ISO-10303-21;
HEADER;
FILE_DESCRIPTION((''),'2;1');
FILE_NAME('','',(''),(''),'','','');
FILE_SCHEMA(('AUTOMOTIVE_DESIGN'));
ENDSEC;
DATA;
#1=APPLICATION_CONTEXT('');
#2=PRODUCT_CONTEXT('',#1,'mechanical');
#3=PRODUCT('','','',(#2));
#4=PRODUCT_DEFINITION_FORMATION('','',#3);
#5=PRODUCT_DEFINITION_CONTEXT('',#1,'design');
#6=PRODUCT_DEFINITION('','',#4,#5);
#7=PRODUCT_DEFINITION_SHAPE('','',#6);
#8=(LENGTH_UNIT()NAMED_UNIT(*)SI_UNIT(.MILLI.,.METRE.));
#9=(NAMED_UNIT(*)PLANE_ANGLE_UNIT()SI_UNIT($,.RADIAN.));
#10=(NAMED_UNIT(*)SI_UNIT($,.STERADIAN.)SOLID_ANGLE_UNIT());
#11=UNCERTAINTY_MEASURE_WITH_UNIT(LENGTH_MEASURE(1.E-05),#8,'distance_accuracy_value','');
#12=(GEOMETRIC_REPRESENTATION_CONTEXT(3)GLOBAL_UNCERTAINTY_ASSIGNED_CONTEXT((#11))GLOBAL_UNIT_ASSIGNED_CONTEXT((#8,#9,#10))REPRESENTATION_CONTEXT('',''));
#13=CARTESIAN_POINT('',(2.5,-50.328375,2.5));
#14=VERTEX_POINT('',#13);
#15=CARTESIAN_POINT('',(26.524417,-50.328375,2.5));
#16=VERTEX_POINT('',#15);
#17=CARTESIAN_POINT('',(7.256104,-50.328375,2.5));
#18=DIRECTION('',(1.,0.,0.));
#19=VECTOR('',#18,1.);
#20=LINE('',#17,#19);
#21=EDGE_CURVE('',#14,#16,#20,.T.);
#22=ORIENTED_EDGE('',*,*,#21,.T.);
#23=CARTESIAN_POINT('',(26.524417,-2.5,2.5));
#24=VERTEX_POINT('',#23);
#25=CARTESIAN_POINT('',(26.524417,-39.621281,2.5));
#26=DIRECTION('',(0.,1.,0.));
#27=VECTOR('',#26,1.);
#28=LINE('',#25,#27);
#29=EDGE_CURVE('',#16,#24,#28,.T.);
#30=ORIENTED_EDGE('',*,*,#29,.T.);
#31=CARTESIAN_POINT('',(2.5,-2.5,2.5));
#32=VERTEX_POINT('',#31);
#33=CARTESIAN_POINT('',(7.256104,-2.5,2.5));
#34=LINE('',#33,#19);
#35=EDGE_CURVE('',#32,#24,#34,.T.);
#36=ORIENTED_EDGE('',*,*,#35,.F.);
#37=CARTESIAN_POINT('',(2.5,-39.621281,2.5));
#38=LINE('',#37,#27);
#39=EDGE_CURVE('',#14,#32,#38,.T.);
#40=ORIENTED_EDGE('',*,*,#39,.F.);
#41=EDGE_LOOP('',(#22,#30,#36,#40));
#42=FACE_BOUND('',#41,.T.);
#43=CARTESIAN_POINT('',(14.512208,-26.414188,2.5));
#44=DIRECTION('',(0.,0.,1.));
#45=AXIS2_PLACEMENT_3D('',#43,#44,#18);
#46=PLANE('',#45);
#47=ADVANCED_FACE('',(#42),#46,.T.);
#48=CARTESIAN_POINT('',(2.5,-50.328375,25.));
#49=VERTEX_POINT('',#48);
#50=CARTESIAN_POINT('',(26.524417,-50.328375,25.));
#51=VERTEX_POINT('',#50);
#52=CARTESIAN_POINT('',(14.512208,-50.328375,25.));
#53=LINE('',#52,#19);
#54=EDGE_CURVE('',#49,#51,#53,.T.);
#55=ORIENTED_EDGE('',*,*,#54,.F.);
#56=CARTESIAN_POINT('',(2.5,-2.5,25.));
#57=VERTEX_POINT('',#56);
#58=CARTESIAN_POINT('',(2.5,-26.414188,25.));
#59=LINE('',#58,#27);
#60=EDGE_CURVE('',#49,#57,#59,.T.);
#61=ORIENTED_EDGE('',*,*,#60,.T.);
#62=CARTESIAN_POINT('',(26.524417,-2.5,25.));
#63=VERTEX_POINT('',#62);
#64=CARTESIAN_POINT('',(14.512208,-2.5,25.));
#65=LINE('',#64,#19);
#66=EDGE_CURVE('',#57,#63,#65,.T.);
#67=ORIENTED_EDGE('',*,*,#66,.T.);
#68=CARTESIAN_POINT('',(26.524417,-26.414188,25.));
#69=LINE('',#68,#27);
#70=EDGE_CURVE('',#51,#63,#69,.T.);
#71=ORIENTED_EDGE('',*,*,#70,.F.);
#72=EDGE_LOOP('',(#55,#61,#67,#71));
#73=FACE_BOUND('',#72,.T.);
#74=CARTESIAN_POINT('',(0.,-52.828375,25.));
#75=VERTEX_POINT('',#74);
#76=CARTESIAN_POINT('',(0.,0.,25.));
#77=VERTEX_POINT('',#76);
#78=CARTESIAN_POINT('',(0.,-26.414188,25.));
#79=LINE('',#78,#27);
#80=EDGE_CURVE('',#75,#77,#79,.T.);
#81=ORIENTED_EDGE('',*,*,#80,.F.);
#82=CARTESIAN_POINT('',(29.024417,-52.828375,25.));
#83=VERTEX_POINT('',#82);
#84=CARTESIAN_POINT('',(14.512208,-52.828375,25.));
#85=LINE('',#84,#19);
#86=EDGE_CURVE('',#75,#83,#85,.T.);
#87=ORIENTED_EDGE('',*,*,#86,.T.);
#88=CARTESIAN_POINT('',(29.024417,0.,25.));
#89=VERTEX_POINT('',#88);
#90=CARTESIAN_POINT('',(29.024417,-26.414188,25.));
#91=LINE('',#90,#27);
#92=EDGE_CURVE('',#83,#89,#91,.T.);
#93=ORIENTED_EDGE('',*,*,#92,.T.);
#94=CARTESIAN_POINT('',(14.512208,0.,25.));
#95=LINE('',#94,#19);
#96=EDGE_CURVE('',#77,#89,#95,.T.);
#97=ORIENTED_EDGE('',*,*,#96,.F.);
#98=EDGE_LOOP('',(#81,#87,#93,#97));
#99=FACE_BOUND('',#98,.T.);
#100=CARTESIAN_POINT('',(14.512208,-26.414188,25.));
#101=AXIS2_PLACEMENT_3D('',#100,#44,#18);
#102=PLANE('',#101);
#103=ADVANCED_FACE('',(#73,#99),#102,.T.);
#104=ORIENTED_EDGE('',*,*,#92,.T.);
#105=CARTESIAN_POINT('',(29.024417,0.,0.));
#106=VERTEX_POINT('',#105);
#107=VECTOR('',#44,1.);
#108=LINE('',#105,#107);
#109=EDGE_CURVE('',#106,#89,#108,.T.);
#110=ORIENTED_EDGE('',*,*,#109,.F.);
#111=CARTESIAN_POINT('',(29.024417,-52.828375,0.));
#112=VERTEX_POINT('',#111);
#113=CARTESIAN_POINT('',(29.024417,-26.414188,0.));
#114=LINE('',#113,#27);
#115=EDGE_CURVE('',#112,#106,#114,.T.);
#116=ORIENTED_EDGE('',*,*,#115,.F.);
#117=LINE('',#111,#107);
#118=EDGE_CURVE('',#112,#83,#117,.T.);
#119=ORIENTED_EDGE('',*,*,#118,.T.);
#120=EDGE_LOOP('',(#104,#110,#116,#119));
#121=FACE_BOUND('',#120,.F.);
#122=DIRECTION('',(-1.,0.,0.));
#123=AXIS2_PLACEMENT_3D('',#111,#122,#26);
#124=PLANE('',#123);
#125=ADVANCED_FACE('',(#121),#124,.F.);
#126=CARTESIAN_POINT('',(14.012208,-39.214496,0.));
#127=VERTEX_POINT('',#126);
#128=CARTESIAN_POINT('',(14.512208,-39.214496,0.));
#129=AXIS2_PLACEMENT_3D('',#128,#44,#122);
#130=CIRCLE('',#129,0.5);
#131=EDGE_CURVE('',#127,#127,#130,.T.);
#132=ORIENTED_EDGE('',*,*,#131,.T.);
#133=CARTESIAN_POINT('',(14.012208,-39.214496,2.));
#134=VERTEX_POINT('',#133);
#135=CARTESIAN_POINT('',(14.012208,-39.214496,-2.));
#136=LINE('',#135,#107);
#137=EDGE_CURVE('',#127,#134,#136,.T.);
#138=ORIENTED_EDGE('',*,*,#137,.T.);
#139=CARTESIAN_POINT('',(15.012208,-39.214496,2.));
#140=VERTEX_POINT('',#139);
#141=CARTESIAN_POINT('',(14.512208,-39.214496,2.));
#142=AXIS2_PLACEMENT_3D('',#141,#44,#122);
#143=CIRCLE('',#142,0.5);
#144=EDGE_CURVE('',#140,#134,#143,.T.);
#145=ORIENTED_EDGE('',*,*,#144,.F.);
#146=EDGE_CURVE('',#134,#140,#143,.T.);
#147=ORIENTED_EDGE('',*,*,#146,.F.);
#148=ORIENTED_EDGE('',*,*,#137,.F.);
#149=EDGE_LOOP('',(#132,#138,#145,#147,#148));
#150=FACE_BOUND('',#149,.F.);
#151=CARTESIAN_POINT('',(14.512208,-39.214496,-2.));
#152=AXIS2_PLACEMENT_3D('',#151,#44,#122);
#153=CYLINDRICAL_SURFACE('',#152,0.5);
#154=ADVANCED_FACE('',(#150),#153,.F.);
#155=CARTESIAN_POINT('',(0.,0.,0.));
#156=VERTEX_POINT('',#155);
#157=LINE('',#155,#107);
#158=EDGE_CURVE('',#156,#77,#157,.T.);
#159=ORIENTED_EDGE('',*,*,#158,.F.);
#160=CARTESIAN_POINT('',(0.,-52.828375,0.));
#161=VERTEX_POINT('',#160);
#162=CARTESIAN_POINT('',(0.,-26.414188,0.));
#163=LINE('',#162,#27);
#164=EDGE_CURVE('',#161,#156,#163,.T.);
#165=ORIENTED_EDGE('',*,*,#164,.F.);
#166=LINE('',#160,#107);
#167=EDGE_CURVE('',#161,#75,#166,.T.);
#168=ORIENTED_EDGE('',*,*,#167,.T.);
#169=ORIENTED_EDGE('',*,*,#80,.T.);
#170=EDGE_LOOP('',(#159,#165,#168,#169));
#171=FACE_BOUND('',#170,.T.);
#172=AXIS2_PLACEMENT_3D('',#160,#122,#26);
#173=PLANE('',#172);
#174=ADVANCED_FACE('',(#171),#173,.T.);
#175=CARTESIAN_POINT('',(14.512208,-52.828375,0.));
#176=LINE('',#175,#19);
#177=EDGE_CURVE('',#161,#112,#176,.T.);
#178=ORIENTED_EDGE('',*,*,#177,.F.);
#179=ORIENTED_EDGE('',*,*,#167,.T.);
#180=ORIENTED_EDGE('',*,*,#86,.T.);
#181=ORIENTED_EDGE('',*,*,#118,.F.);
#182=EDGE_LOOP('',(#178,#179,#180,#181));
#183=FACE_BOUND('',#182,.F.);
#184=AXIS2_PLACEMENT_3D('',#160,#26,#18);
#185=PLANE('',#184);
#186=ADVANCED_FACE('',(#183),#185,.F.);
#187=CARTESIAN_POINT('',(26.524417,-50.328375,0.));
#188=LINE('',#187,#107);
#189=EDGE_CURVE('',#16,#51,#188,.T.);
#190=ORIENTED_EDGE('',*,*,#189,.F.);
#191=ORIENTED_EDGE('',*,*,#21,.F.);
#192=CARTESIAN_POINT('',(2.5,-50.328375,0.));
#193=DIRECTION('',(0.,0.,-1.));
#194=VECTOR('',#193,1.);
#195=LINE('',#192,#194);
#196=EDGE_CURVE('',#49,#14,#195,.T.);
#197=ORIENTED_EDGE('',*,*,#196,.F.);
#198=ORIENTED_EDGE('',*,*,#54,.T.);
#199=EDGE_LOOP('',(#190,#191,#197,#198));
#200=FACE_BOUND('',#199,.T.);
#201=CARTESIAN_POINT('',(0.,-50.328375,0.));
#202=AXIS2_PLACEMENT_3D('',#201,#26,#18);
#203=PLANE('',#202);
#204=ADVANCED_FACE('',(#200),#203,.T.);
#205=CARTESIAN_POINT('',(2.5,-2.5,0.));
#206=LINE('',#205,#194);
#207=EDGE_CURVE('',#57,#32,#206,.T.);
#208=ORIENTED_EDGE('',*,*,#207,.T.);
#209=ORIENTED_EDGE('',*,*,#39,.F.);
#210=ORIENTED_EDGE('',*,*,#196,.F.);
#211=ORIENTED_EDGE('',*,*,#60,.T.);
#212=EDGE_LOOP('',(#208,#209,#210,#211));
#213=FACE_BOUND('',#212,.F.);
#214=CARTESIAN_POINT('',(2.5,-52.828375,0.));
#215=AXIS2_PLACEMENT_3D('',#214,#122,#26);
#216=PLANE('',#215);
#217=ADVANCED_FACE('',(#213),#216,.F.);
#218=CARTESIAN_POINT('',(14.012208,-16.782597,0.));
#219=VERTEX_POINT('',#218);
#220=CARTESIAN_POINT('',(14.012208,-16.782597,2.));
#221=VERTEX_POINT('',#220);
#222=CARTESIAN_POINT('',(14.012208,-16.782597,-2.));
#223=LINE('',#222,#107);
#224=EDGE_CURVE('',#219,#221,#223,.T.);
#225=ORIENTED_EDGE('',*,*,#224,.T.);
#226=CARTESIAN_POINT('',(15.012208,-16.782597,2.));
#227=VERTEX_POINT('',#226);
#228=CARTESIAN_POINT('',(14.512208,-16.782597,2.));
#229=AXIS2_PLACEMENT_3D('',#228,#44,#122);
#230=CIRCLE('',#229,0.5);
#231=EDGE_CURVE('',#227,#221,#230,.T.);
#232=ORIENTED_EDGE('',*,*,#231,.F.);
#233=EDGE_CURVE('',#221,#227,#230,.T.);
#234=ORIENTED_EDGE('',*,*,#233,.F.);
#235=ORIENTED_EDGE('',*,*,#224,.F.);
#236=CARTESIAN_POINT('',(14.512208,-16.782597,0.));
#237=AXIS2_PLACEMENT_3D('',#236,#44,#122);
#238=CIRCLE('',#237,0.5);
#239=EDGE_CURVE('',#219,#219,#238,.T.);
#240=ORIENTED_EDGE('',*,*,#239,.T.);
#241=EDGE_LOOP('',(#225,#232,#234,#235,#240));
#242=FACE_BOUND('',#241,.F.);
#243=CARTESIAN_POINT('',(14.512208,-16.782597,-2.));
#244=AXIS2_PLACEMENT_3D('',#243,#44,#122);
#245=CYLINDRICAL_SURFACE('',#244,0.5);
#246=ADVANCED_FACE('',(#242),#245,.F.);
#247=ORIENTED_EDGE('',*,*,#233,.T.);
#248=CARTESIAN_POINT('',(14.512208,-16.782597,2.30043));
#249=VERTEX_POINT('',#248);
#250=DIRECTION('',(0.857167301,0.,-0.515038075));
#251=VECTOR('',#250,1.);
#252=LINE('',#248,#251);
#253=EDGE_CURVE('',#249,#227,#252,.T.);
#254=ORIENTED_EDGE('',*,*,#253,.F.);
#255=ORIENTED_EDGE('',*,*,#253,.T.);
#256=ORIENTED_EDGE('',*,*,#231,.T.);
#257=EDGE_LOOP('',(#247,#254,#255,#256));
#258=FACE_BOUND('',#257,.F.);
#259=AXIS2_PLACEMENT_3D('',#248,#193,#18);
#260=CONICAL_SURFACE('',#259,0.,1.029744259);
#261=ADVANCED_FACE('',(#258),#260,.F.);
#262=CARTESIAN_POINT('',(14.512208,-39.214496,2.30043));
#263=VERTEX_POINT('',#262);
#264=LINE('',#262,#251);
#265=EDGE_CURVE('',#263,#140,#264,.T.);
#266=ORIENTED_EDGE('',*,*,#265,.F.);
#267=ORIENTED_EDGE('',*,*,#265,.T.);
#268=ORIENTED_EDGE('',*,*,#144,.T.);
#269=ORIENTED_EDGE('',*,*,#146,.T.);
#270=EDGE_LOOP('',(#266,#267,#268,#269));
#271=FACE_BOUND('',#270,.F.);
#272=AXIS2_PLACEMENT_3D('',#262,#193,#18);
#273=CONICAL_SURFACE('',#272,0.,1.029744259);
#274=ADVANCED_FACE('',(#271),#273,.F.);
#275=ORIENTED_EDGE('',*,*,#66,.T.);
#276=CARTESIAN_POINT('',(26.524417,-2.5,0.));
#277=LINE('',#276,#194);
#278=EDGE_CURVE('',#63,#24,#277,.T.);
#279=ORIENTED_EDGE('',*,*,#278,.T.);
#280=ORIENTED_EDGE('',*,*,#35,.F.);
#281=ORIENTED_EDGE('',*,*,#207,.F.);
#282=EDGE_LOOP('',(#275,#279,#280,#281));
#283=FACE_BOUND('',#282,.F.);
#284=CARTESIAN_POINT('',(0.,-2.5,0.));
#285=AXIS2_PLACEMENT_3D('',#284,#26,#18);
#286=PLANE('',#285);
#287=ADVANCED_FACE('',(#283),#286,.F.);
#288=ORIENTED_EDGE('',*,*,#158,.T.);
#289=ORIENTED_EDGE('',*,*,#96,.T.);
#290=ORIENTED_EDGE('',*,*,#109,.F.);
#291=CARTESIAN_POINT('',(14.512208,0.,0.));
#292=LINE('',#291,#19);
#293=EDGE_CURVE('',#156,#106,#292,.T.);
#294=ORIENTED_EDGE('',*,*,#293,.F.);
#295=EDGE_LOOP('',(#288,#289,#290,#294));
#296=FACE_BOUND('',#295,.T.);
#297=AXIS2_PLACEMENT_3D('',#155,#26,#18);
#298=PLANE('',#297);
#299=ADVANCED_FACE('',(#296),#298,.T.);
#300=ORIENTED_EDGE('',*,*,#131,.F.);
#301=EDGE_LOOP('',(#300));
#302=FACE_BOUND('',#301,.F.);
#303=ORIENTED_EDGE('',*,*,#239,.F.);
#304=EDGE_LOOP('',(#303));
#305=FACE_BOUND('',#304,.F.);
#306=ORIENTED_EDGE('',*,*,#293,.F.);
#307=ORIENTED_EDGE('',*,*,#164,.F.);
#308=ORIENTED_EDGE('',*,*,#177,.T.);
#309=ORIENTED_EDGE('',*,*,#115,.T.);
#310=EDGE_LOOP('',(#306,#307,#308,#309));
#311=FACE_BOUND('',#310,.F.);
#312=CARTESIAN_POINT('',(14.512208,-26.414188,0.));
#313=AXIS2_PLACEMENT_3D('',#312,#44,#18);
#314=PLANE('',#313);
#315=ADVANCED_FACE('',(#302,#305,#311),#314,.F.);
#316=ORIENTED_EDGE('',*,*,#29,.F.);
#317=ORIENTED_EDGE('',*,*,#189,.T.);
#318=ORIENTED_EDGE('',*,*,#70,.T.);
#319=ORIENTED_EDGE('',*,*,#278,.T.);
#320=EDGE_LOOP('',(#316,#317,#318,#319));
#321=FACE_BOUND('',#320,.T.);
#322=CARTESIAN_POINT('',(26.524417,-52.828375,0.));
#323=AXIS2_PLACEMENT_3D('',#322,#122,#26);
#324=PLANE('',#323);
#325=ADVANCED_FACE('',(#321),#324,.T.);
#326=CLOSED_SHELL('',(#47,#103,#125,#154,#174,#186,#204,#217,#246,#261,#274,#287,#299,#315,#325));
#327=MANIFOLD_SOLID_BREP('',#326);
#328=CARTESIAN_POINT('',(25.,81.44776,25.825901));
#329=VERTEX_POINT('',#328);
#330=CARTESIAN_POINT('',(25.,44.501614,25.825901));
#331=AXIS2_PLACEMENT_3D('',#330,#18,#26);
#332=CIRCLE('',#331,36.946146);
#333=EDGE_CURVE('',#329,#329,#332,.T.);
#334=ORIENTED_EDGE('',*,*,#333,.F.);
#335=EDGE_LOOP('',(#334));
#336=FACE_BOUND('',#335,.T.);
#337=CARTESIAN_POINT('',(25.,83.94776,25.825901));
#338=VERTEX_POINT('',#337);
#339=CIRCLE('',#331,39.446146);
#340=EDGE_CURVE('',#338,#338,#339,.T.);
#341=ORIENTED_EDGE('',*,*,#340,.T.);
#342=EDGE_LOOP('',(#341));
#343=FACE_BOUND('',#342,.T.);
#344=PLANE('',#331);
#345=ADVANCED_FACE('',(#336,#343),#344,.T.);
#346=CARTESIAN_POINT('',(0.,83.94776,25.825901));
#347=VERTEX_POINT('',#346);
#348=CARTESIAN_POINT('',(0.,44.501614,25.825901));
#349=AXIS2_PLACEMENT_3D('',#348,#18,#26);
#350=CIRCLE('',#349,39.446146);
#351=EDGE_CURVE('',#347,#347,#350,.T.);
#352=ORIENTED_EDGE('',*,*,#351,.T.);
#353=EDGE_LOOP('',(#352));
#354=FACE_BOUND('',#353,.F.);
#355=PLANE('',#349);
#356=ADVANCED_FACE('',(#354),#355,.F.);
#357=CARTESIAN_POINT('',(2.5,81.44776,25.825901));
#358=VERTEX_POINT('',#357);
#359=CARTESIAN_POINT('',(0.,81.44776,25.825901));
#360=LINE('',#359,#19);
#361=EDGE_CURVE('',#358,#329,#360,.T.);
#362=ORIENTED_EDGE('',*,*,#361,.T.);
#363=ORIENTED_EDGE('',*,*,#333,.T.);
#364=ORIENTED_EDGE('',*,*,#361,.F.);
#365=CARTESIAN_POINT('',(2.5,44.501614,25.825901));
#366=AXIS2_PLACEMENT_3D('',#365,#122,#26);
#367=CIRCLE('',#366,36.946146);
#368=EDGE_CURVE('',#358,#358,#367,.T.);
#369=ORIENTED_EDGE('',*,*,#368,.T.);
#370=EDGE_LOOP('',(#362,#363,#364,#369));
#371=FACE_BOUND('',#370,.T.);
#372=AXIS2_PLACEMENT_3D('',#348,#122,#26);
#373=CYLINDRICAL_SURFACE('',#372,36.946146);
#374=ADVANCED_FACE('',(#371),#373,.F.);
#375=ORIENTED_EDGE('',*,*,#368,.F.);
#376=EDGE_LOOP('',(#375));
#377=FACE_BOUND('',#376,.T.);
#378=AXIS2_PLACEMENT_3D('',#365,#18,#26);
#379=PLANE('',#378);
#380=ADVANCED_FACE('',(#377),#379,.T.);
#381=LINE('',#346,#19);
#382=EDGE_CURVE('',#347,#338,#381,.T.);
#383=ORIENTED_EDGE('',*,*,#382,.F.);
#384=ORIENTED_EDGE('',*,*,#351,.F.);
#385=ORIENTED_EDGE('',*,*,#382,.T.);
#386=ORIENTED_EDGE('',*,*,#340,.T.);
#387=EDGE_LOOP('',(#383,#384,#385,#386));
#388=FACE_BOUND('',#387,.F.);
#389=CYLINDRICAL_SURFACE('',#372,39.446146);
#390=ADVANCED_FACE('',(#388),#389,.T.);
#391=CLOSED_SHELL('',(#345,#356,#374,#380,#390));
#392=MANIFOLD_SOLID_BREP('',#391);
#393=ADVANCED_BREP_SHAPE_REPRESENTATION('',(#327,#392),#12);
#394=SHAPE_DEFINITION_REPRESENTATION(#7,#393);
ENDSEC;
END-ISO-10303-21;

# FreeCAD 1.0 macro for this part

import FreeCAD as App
import Part
import Sketcher


def faces_at(feature, points):
    """Names of the faces that lie closest to the given points."""
    faces = feature.Shape.Faces
    near = lambda p: min(range(len(faces)), key=lambda i: faces[i].distToShape(Part.Vertex(*p))[0])
    return sorted({f"Face{near(p) + 1}" for p in points})

doc = App.newDocument("Part")
body = doc.addObject("PartDesign::Body", "Body")

# Sketch on XY plane
sketch1 = body.newObject("Sketcher::SketchObject", "Sketch")
sketch1.AttachmentSupport = (doc.getObject("XY_Plane"), [""])
sketch1.MapMode = "FlatFace"
sketch1.addGeometry([
    Part.LineSegment(App.Vector(0, 0, 0), App.Vector(0, -53, 0)),
    Part.LineSegment(App.Vector(0, -53, 0), App.Vector(29, -53, 0)),
    Part.LineSegment(App.Vector(29, -53, 0), App.Vector(29, 0, 0)),
    Part.LineSegment(App.Vector(29, 0, 0), App.Vector(0, 0, 0)),
], False)
sketch1.addConstraint([
    Sketcher.Constraint("Coincident", 0, 2, 1, 1),
    Sketcher.Constraint("Coincident", 1, 2, 2, 1),
    Sketcher.Constraint("Coincident", 2, 2, 3, 1),
    Sketcher.Constraint("Coincident", 3, 2, 0, 1),
    Sketcher.Constraint("Vertical", 0),
    Sketcher.Constraint("Horizontal", 1),
    Sketcher.Constraint("Vertical", 2),
    Sketcher.Constraint("Horizontal", 3),
    Sketcher.Constraint("Coincident", 3, 2, -1, 1),
    Sketcher.Constraint("DistanceX", 1, 1, 1, 2, 29.024417),
    Sketcher.Constraint("DistanceY", 0, 2, 0, 1, 52.828375),
])
pad1 = body.newObject("PartDesign::Pad", "Pad")
pad1.Profile = sketch1
pad1.Length = 25
doc.recompute()

thickness = body.newObject("PartDesign::Thickness", "Thickness")
thickness.Base = (pad1, faces_at(pad1, [(14.512, -26.414, 25)]))
thickness.Value = 2.5
thickness.Reversed = True
thickness.Join = "Arc"

# Sketch on XY plane
sketch2 = body.newObject("Sketcher::SketchObject", "Sketch001")
sketch2.AttachmentSupport = (doc.getObject("XY_Plane"), [""])
sketch2.MapMode = "FlatFace"
sketch2.addGeometry([
    Part.Circle(App.Vector(14.5, -16.8, 0), App.Vector(0, 0, 1), 0.5),
    Part.Circle(App.Vector(14.5, -39.2, 0), App.Vector(0, 0, 1), 0.5),
], False)
sketch2.addConstraint([
    Sketcher.Constraint("Equal", 0, 1),
    Sketcher.Constraint("Vertical", 0, 3, 1, 3),
    Sketcher.Constraint("Diameter", 0, 1.0),
    Sketcher.Constraint("DistanceY", 1, 3, 0, 3, 22.431899),
    Sketcher.Constraint("DistanceX", -1, 1, 0, 3, 14.512208),
    Sketcher.Constraint("DistanceY", 0, 3, -1, 1, 16.782597),
])
doc.recompute()
hole = body.newObject("PartDesign::Hole", "Hole")
hole.Profile = sketch2
hole.ThreadType = "None"
hole.Diameter = 1
hole.DepthType = "Dimension"
hole.Depth = 2
hole.DrillPoint = "Angled"
hole.DrillPointAngle = 118
hole.Reversed = True
body2 = doc.addObject("PartDesign::Body", "Body001")

# Sketch on YZ plane
sketch3 = body2.newObject("Sketcher::SketchObject", "Sketch002")
sketch3.AttachmentSupport = (doc.getObject("YZ_Plane001"), [""])
sketch3.MapMode = "FlatFace"
sketch3.addGeometry(Part.Circle(App.Vector(45, 26, 0), App.Vector(0, 0, 1), 39), False)
sketch3.addConstraint([
    Sketcher.Constraint("Diameter", 0, 78.892293),
    Sketcher.Constraint("DistanceY", -1, 1, 0, 3, 25.825901),
    Sketcher.Constraint("DistanceX", -1, 1, 0, 3, 44.501614),
])
pad2 = body2.newObject("PartDesign::Pad", "Pad001")
pad2.Profile = sketch3
pad2.Length = 25
doc.recompute()

thickness2 = body2.newObject("PartDesign::Thickness", "Thickness001")
thickness2.Base = (pad2, faces_at(pad2, [(25, 44.502, 25.826)]))
thickness2.Value = 2.5
thickness2.Reversed = True
thickness2.Join = "Arc"

doc.recompute()
